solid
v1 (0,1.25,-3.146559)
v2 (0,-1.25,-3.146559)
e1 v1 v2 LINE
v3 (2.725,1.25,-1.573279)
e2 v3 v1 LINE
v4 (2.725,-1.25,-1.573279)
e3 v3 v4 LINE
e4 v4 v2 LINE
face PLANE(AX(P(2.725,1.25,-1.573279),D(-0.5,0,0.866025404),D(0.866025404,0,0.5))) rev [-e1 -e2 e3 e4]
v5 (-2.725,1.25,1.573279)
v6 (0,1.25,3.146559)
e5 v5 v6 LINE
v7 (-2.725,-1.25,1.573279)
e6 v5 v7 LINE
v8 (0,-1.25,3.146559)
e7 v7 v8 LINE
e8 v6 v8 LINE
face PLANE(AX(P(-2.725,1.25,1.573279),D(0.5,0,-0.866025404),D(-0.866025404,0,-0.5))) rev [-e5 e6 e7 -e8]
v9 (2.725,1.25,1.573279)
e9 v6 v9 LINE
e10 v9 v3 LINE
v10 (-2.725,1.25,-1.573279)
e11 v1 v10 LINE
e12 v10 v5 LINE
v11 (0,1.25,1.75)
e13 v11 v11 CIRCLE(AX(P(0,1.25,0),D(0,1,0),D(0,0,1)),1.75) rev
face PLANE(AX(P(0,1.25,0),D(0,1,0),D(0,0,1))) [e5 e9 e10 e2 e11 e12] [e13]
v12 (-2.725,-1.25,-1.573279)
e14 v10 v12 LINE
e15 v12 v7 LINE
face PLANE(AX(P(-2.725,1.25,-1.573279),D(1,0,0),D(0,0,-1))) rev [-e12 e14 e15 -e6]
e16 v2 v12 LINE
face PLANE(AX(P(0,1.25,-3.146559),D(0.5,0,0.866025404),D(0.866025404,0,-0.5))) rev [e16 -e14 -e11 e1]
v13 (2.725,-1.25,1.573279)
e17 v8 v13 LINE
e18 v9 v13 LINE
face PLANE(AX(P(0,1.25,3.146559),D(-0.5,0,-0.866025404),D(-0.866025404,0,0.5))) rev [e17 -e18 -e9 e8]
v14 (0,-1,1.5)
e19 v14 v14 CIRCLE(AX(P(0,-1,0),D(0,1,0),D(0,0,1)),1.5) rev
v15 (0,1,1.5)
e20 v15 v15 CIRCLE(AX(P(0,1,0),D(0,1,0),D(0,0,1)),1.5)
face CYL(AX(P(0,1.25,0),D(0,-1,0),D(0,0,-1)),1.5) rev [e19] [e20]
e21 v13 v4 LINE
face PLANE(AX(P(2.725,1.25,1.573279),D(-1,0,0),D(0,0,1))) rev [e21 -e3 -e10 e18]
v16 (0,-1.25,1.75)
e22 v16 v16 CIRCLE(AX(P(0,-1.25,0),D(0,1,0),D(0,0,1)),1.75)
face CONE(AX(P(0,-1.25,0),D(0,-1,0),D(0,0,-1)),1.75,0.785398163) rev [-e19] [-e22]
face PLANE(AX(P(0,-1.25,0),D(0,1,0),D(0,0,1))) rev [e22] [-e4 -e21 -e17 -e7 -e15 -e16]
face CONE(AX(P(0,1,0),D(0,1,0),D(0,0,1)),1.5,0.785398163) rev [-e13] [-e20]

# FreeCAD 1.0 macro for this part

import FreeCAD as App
import Part
import Sketcher
Q = App.Units.Quantity


def edges_at(feature, points):
    """Names of the edges that pass closest to the given points."""
    edges = feature.Shape.Edges
    near = lambda p: min(range(len(edges)), key=lambda i: edges[i].distToShape(Part.Vertex(*p))[0])
    return sorted({f"Edge{near(p) + 1}" for p in points})

doc = App.newDocument("Part")
body = doc.addObject("PartDesign::Body", "Body")

# Sketch on XZ plane
sketch1 = body.newObject("Sketcher::SketchObject", "Sketch")
sketch1.AttachmentSupport = (doc.getObject("XZ_Plane"), [""])
sketch1.MapMode = "FlatFace"
sketch1.addGeometry(Part.LineSegment(App.Vector(-2.7, -1.6, 0), App.Vector(-2.7, 1.6, 0)), False)
sketch1.addGeometry(Part.LineSegment(App.Vector(-2.7, 1.6, 0), App.Vector(0, 3.1, 0)), False)
sketch1.addGeometry(Part.LineSegment(App.Vector(0, 3.1, 0), App.Vector(2.7, 1.6, 0)), False)
sketch1.addGeometry(Part.LineSegment(App.Vector(2.7, 1.6, 0), App.Vector(2.7, -1.6, 0)), False)
sketch1.addGeometry(Part.LineSegment(App.Vector(2.7, -1.6, 0), App.Vector(0, -3.1, 0)), False)
sketch1.addGeometry(Part.LineSegment(App.Vector(0, -3.1, 0), App.Vector(-2.7, -1.6, 0)), False)
sketch1.addGeometry(Part.Circle(App.Vector(0, 0, 0), App.Vector(0, 0, 1), 1.5), False)
sketch1.addConstraint(Sketcher.Constraint("Coincident", 0, 2, 1, 1))
sketch1.addConstraint(Sketcher.Constraint("Coincident", 1, 2, 2, 1))
sketch1.addConstraint(Sketcher.Constraint("Coincident", 2, 2, 3, 1))
sketch1.addConstraint(Sketcher.Constraint("Coincident", 3, 2, 4, 1))
sketch1.addConstraint(Sketcher.Constraint("Coincident", 4, 2, 5, 1))
sketch1.addConstraint(Sketcher.Constraint("Coincident", 5, 2, 0, 1))
sketch1.addConstraint(Sketcher.Constraint("Vertical", 0))
sketch1.addConstraint(Sketcher.Constraint("Vertical", 3))
sketch1.addConstraint(Sketcher.Constraint("Coincident", 6, 3, -1, 1))
sketch1.addConstraint(Sketcher.Constraint("Symmetric", 0, 2, 3, 2, -1, 1))
sketch1.addConstraint(Sketcher.Constraint("Symmetric", 1, 2, 4, 2, -1, 1))
sketch1.addConstraint(Sketcher.Constraint("PointOnObject", 1, 2, -2))
sketch1.addConstraint(Sketcher.Constraint("Parallel", 2, 5))
sketch1.addConstraint(Sketcher.Constraint("Horizontal", 0, 2, 2, 2))
sketch1.addConstraint(Sketcher.Constraint("Diameter", 6, 3.0))
sketch1.addConstraint(Sketcher.Constraint("Angle", 1, Q("30 deg")))
sketch1.addConstraint(Sketcher.Constraint("DistanceX", 0, 2, 2, 2, 5.45))
sketch1.addConstraint(Sketcher.Constraint("DistanceY", 0, 1, 0, 2, 3.146559))
pad1 = body.newObject("PartDesign::Pad", "Pad")
pad1.Profile = sketch1
pad1.Length = 2.5
pad1.Midplane = True
doc.recompute()

chamfer = body.newObject("PartDesign::Chamfer", "Chamfer")
chamfer.Base = (pad1, edges_at(pad1, [(0, -1.25, -1.5), (0, 1.25, -1.5)]))
chamfer.Size = 0.25

doc.recompute()
